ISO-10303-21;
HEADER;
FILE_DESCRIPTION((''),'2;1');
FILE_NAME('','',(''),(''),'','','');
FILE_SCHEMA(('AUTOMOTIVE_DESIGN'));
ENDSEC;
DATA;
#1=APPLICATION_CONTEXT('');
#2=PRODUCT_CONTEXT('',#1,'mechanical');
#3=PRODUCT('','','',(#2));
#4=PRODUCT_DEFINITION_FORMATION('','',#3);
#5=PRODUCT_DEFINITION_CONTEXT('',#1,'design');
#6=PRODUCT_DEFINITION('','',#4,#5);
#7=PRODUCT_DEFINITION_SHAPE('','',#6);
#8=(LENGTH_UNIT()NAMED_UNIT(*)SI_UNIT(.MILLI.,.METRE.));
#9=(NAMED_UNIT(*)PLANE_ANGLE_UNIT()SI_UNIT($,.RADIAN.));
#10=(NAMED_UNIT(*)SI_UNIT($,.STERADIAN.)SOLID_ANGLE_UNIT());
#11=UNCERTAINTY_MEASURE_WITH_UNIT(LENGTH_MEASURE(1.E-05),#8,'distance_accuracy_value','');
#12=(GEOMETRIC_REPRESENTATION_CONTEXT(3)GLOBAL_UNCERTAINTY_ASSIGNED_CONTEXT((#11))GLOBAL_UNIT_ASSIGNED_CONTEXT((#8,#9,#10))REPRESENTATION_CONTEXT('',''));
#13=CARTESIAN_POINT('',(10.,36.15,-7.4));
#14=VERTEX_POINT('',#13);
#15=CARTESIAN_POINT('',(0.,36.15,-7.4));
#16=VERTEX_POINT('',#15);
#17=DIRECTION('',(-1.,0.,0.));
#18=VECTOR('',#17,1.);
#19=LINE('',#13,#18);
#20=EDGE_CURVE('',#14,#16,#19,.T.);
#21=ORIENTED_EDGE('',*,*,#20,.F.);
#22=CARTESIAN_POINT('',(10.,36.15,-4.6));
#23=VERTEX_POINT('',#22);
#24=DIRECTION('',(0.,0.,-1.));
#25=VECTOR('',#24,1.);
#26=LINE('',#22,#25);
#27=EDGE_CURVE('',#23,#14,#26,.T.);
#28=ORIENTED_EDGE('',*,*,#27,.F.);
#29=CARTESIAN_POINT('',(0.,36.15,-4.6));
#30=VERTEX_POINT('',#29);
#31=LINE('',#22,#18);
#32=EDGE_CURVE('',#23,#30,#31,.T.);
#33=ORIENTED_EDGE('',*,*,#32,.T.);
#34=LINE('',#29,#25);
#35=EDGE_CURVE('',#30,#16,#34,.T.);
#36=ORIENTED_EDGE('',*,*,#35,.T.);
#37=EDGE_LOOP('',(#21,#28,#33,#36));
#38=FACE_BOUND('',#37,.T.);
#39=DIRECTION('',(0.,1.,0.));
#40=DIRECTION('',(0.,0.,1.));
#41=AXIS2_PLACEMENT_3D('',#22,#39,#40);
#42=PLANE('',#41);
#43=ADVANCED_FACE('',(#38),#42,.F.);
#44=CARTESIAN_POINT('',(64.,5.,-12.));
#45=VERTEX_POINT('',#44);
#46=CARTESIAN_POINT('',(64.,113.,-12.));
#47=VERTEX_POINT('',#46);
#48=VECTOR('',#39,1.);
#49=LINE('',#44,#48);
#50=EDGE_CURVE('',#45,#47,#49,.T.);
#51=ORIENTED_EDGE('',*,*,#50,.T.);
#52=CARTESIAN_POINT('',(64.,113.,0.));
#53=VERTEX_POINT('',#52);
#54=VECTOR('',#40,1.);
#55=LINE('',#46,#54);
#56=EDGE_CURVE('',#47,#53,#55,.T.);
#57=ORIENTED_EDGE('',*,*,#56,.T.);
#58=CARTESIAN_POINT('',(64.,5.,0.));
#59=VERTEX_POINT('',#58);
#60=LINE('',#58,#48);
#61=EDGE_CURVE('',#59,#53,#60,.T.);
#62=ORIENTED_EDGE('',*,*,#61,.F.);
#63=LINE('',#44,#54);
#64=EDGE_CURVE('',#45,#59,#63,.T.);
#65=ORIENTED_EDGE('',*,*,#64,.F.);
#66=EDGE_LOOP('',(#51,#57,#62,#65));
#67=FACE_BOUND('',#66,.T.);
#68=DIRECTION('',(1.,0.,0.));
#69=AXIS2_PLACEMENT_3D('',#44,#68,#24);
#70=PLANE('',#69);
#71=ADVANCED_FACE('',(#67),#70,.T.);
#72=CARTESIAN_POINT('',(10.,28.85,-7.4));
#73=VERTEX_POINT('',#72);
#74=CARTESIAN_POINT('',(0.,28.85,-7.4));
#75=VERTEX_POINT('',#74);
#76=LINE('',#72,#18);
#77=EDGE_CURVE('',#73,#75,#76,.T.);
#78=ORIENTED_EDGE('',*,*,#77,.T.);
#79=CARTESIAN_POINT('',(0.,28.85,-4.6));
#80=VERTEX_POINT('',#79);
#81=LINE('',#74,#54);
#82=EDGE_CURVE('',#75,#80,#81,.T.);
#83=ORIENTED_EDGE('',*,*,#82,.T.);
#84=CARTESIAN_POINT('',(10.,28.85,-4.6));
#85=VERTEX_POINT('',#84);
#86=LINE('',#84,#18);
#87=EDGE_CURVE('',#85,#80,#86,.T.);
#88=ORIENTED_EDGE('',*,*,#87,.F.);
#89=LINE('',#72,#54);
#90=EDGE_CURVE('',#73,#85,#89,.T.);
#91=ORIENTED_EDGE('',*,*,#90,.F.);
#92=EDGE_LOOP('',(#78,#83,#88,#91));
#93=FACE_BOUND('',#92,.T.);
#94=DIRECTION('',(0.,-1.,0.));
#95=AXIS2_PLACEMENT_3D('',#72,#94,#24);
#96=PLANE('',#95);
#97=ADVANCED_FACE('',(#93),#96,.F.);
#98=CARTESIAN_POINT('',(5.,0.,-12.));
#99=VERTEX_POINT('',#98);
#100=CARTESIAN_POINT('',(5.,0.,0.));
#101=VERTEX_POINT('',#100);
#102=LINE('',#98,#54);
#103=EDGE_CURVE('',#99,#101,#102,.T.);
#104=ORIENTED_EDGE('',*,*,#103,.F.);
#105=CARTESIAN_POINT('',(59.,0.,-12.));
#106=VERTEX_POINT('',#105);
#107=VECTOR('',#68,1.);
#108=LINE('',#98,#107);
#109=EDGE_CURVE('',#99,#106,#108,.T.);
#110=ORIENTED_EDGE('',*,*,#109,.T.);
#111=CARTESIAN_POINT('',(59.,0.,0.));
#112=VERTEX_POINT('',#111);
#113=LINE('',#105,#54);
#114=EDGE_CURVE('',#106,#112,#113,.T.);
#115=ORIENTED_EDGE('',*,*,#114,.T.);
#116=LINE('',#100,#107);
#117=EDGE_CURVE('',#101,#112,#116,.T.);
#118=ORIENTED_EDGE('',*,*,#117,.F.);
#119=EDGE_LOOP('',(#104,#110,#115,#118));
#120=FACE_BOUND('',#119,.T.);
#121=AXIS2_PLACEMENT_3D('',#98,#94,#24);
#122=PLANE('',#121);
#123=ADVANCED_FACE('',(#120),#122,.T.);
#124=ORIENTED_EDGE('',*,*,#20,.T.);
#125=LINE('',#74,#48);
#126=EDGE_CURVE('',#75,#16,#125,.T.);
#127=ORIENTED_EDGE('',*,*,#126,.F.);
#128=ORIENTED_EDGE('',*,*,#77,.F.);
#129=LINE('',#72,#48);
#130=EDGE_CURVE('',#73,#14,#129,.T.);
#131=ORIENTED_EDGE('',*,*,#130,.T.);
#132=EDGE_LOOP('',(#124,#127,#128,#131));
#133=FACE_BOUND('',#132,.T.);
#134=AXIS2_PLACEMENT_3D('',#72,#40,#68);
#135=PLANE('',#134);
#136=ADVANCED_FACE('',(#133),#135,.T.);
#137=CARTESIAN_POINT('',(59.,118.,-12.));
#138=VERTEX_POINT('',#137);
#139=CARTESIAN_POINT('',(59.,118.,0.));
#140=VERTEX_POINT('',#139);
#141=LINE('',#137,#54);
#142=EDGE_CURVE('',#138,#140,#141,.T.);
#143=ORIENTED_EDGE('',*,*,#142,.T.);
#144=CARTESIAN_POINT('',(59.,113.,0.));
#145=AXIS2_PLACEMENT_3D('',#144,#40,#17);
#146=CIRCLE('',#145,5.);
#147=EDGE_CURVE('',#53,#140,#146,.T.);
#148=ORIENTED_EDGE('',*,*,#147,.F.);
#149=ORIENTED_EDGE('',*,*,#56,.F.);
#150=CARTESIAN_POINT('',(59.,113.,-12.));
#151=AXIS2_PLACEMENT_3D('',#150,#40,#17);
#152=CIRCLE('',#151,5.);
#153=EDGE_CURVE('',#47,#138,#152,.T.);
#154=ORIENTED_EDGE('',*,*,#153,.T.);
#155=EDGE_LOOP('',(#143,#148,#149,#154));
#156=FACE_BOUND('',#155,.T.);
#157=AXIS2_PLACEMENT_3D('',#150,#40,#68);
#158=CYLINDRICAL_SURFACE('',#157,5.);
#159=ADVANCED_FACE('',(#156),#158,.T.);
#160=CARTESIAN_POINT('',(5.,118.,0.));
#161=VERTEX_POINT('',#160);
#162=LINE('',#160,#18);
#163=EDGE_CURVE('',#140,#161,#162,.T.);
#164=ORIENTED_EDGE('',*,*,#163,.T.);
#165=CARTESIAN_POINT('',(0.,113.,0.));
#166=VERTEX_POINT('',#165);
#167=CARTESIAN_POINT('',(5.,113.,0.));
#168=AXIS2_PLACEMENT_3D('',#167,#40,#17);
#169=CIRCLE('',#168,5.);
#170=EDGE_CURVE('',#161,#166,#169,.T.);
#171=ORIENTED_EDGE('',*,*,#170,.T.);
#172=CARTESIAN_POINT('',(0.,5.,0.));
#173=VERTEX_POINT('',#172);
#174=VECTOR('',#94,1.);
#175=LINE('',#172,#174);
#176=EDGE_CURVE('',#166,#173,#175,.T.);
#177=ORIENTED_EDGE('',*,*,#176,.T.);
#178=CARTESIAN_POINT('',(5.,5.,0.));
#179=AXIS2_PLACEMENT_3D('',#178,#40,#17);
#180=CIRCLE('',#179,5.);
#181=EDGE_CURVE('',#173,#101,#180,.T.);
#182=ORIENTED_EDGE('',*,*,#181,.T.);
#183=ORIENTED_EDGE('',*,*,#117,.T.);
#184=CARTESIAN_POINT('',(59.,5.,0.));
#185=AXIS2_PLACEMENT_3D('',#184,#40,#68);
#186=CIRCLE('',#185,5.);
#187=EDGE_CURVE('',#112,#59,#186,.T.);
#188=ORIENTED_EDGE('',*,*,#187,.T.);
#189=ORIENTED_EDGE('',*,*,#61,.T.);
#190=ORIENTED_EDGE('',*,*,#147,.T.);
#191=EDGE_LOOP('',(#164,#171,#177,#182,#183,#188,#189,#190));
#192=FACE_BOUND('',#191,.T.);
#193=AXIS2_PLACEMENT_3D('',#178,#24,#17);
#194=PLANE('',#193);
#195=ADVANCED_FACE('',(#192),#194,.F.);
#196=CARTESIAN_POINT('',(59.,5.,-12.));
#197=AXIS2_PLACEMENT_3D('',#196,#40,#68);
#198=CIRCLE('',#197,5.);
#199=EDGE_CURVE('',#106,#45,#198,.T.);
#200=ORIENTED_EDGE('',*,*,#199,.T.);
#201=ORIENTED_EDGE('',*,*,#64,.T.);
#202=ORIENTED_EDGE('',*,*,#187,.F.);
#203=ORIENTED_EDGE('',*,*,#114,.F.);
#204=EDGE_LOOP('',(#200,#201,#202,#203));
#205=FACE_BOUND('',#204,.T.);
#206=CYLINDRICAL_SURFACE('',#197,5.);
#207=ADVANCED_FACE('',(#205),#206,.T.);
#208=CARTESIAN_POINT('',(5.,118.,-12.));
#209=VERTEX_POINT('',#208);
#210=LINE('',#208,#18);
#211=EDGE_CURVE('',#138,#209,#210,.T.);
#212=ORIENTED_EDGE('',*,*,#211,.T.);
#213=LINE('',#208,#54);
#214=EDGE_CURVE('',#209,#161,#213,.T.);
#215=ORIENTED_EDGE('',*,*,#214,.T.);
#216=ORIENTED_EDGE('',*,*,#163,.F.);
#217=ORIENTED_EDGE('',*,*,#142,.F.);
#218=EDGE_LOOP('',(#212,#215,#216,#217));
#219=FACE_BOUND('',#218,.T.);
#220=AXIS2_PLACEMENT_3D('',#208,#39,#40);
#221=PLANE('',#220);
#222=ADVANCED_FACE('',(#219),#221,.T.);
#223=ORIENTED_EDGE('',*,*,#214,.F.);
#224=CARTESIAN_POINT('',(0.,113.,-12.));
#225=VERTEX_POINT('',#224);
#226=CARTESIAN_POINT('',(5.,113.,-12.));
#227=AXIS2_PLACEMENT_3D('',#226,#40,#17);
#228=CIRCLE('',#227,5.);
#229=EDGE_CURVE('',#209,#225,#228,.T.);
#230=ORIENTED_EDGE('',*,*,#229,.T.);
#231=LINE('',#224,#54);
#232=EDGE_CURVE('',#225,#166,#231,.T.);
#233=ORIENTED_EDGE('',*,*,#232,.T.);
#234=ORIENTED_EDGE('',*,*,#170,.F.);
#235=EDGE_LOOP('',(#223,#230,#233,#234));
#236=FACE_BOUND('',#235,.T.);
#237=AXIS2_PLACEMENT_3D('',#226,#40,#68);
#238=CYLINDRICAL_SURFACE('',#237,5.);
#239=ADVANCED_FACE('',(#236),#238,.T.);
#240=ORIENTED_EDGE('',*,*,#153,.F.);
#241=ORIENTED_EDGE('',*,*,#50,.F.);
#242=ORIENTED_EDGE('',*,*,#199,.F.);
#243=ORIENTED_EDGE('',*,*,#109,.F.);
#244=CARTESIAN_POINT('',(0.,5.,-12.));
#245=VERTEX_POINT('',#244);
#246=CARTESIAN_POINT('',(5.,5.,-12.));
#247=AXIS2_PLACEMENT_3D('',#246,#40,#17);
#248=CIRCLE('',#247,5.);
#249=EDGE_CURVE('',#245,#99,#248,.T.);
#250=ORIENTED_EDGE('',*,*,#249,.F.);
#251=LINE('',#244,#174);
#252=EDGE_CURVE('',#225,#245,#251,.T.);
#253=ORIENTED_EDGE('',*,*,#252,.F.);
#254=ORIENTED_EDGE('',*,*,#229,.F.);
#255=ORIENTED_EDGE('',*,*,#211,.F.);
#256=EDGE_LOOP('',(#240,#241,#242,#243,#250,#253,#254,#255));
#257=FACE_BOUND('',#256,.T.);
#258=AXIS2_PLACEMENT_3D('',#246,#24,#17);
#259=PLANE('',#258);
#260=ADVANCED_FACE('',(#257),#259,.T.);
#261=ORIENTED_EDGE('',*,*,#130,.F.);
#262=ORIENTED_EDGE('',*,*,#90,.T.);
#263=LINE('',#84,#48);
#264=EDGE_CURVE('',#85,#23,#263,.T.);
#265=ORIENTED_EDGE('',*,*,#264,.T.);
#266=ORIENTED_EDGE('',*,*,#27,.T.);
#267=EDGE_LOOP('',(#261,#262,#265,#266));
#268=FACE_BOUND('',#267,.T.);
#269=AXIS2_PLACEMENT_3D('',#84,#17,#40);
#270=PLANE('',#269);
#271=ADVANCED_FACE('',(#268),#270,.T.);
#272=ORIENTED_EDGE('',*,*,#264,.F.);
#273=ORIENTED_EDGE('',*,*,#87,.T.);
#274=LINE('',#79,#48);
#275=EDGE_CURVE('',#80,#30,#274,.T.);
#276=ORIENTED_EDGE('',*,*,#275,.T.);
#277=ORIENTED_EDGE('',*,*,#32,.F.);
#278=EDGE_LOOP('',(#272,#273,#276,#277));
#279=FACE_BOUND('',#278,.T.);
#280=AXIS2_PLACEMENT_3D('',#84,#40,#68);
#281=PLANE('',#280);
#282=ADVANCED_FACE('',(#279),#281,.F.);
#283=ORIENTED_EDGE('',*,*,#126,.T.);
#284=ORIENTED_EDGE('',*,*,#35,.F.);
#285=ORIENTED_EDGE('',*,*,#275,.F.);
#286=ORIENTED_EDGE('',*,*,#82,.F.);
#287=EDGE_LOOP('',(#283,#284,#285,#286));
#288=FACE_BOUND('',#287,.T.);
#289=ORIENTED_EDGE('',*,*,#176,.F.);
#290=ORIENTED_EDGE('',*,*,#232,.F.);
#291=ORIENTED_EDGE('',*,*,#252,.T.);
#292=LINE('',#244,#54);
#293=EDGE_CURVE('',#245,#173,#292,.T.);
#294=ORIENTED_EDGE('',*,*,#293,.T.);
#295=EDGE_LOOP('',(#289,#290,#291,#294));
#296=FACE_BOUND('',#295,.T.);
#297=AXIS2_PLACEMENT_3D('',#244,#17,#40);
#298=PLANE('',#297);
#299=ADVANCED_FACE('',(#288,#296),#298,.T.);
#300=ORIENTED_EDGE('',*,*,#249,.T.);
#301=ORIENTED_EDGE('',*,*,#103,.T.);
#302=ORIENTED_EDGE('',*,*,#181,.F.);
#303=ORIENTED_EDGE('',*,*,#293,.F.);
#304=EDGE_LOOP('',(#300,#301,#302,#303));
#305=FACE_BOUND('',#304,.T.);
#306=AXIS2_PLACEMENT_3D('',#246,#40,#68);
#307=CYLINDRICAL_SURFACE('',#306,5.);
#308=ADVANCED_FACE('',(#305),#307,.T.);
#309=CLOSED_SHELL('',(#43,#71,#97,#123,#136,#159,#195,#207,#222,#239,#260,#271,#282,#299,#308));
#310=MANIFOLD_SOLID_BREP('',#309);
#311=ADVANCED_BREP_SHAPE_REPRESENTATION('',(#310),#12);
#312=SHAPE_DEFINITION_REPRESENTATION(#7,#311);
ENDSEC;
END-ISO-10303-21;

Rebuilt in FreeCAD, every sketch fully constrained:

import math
import FreeCAD as App
import Part
import Sketcher
Q = App.Units.Quantity


def add_polygon(sketch, points):
    """Adds a closed chain of lines whose ends are joined by coincident constraints."""
    first, n = sketch.GeometryCount, len(points)
    for a, b in zip(points, points[1:] + points[:1]):
        sketch.addGeometry(Part.LineSegment(App.Vector(*a, 0), App.Vector(*b, 0)), False)
    for i in range(n):
        sketch.addConstraint(Sketcher.Constraint("Coincident", first + i, 2, first + (i + 1) % n, 1))

doc = App.newDocument("Part")
body = doc.addObject("PartDesign::Body", "Body")

# Sketch on XY plane
sketch1 = body.newObject("Sketcher::SketchObject", "Sketch")
sketch1.AttachmentSupport = (doc.getObject("XY_Plane"), [""])
sketch1.MapMode = "FlatFace"
sketch1.addGeometry([
    Part.LineSegment(App.Vector(5, 0, 0), App.Vector(59, 0, 0)),  # 0
    Part.ArcOfCircle(Part.Circle(App.Vector(59, 5, 0), App.Vector(0, 0, 1), 5), math.radians(-90), math.radians(0)),  # 1
    Part.LineSegment(App.Vector(64, 5, 0), App.Vector(64, 113, 0)),  # 2
    Part.ArcOfCircle(Part.Circle(App.Vector(59, 113, 0), App.Vector(0, 0, 1), 5), math.radians(0), math.radians(90)),  # 3
    Part.LineSegment(App.Vector(59, 118, 0), App.Vector(5, 118, 0)),  # 4
    Part.ArcOfCircle(Part.Circle(App.Vector(5, 113, 0), App.Vector(0, 0, 1), 5), math.radians(90), math.radians(180)),  # 5
    Part.LineSegment(App.Vector(0, 113, 0), App.Vector(0, 5, 0)),  # 6
    Part.ArcOfCircle(Part.Circle(App.Vector(5, 5, 0), App.Vector(0, 0, 1), 5), math.radians(180), math.radians(270)),  # 7
], False)
sketch1.addConstraint([
    Sketcher.Constraint("Tangent", 0, 2, 1, 1),
    Sketcher.Constraint("Tangent", 1, 2, 2, 1),
    Sketcher.Constraint("Tangent", 2, 2, 3, 1),
    Sketcher.Constraint("Tangent", 3, 2, 4, 1),
    Sketcher.Constraint("Tangent", 4, 2, 5, 1),
    Sketcher.Constraint("Tangent", 5, 2, 6, 1),
    Sketcher.Constraint("Tangent", 6, 2, 7, 1),
    Sketcher.Constraint("Tangent", 7, 2, 0, 1),
    Sketcher.Constraint("Horizontal", 0),
    Sketcher.Constraint("Vertical", 2),
    Sketcher.Constraint("Horizontal", 4),
    Sketcher.Constraint("Vertical", 6),
    Sketcher.Constraint("Equal", 1, 3),
    Sketcher.Constraint("Equal", 3, 5),
    Sketcher.Constraint("Equal", 5, 7),
    Sketcher.Constraint("PointOnObject", 0, 2, -1),
    Sketcher.Constraint("PointOnObject", 5, 2, -2),
    Sketcher.Constraint("Radius", 1, Q("5 mm")),
    Sketcher.Constraint("DistanceX", 0, 1, 0, 2, Q("54 mm")),
    Sketcher.Constraint("DistanceY", 2, 1, 2, 2, Q("108 mm")),
])
pad1 = body.newObject("PartDesign::Pad", "Pad")
pad1.Profile = sketch1
pad1.Length = 12
pad1.Reversed = True

# Sketch on YZ plane
sketch2 = body.newObject("Sketcher::SketchObject", "Sketch001")
sketch2.AttachmentSupport = (doc.getObject("YZ_Plane"), [""])
sketch2.MapMode = "FlatFace"
add_polygon(sketch2, [(36.1, -4.6), (28.9, -4.6), (28.9, -7.4), (36.1, -7.4)])  # lines 0-3
sketch2.addConstraint([
    Sketcher.Constraint("Horizontal", 0),
    Sketcher.Constraint("Vertical", 1),
    Sketcher.Constraint("Horizontal", 2),
    Sketcher.Constraint("Vertical", 3),
    Sketcher.Constraint("DistanceX", 0, 2, 0, 1, Q("7.3 mm")),
    Sketcher.Constraint("DistanceY", 1, 2, 1, 1, Q("2.8 mm")),
    Sketcher.Constraint("DistanceY", 0, 2, -1, 1, Q("4.6 mm")),
    Sketcher.Constraint("DistanceX", -1, 1, 0, 2, Q("28.85 mm")),
])
pocket1 = body.newObject("PartDesign::Pocket", "Pocket")
pocket1.Profile = sketch2
pocket1.Length = 10
pocket1.Reversed = True

doc.recompute()
